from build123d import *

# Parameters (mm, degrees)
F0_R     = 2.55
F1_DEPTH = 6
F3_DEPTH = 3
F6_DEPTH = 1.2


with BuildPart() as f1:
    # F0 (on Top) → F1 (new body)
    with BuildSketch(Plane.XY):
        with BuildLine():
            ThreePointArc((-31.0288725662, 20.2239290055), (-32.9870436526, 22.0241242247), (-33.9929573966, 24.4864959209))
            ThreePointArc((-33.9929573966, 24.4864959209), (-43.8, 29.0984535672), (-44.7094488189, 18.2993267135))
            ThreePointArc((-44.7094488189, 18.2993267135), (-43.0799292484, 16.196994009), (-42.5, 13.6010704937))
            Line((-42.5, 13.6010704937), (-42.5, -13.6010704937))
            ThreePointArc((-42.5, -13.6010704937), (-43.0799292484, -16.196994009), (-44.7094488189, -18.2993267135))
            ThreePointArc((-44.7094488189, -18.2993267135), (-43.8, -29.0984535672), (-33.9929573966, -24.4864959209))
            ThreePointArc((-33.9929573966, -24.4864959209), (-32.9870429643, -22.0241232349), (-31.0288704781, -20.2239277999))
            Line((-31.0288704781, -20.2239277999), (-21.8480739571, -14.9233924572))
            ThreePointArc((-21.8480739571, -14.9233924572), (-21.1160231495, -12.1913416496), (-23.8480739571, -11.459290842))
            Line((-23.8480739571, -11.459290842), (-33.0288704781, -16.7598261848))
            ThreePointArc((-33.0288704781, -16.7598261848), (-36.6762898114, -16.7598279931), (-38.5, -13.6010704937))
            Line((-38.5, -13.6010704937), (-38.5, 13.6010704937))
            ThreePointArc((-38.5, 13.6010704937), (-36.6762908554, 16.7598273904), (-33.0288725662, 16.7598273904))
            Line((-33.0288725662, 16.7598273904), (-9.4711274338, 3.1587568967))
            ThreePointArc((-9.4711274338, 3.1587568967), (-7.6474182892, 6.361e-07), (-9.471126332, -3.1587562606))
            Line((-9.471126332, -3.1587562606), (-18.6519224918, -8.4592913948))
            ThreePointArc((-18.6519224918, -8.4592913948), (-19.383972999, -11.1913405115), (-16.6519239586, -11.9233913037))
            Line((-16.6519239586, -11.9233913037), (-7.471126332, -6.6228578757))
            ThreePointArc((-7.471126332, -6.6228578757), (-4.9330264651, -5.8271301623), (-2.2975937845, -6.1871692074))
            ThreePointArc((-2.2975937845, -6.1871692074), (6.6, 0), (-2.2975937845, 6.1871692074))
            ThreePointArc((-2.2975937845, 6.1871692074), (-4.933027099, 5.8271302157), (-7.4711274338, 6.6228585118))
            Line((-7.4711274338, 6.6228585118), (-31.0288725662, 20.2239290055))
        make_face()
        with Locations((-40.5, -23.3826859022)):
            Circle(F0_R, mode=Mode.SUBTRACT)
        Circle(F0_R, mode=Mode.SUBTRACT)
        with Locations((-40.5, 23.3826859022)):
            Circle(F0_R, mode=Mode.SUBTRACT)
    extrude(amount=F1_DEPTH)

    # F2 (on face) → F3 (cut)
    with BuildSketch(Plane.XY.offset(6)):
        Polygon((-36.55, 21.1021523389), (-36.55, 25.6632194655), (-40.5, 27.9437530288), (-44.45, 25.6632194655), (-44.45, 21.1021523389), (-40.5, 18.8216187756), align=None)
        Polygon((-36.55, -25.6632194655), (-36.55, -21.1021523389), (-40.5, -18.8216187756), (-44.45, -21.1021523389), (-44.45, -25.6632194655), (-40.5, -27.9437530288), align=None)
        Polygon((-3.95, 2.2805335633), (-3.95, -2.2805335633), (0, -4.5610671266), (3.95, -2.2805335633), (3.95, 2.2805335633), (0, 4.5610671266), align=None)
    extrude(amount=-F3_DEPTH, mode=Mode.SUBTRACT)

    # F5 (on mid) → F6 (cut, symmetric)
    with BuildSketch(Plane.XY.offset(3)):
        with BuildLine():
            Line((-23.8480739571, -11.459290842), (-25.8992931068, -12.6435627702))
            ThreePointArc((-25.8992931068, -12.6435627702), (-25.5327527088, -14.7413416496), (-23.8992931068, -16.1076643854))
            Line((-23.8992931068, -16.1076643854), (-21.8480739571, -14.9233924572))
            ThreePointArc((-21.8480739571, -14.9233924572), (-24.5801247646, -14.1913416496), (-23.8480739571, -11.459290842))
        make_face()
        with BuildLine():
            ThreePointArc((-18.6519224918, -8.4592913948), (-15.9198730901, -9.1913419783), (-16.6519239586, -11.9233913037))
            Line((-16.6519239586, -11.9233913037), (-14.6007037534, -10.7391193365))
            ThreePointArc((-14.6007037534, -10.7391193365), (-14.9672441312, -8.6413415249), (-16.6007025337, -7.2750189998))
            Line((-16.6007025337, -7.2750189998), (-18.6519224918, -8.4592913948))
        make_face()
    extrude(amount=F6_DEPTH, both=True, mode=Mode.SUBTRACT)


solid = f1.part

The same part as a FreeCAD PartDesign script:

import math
import FreeCAD as App
import Part
import Sketcher

V = App.Vector
Q = App.Units.Quantity

doc = App.newDocument("Part")
body = doc.addObject("PartDesign::Body", "Body")

sketch1 = body.newObject("Sketcher::SketchObject", "Sketch")
sketch1.AttachmentSupport = (doc.getObject("XY_Plane"), [""])
sketch1.MapMode = "FlatFace"
sketch1.addGeometry([
    Part.ArcOfCircle(Part.Circle(V(-28, 25.5, 0), V(0, 0, 1), 6.1), math.radians(-170), math.radians(-120)),
    Part.ArcOfCircle(Part.Circle(V(-40.5, 23.4, 0), V(0, 0, 1), 6.6), math.radians(10), math.radians(230)),
    Part.ArcOfCircle(Part.Circle(V(-48.6, 13.6, 0), V(0, 0, 1), 6.1), math.radians(0), math.radians(50)),
    Part.LineSegment(V(-42.5, 13.6, 0), V(-42.5, -13.6, 0)),
    Part.ArcOfCircle(Part.Circle(V(-48.6, -13.6, 0), V(0, 0, 1), 6.1), math.radians(-50), math.radians(0)),
    Part.ArcOfCircle(Part.Circle(V(-40.5, -23.4, 0), V(0, 0, 1), 6.6), math.radians(130), math.radians(350)),
    Part.ArcOfCircle(Part.Circle(V(-28, -25.5, 0), V(0, 0, 1), 6.1), math.radians(120), math.radians(170)),
    Part.LineSegment(V(-31, -20.2, 0), V(-21.8, -14.9, 0)),
    Part.ArcOfCircle(Part.Circle(V(-22.8, -13.2, 0), V(0, 0, 1), 2), math.radians(-60), math.radians(120)),
    Part.LineSegment(V(-23.8, -11.5, 0), V(-33, -16.8, 0)),
    Part.ArcOfCircle(Part.Circle(V(-34.9, -13.6, 0), V(0, 0, 1), 3.6), math.radians(180), math.radians(300)),
    Part.LineSegment(V(-38.5, -13.6, 0), V(-38.5, 13.6, 0)),
    Part.ArcOfCircle(Part.Circle(V(-34.9, 13.6, 0), V(0, 0, 1), 3.6), math.radians(60), math.radians(180)),
    Part.LineSegment(V(-33, 16.8, 0), V(-9.5, 3.2, 0)),
    Part.ArcOfCircle(Part.Circle(V(-11.3, 0, 0), V(0, 0, 1), 3.6), math.radians(-60), math.radians(60)),
    Part.LineSegment(V(-9.5, -3.2, 0), V(-18.7, -8.5, 0)),
    Part.ArcOfCircle(Part.Circle(V(-17.7, -10.2, 0), V(0, 0, 1), 2), math.radians(120), math.radians(300)),
    Part.LineSegment(V(-16.7, -11.9, 0), V(-7.5, -6.6, 0)),
    Part.ArcOfCircle(Part.Circle(V(-4.4, -11.9, 0), V(0, 0, 1), 6.1), math.radians(70), math.radians(120)),
    Part.ArcOfCircle(Part.Circle(V(0, 0, 0), V(0, 0, 1), 6.6), math.radians(-110), math.radians(110)),
    Part.ArcOfCircle(Part.Circle(V(-4.4, 11.9, 0), V(0, 0, 1), 6.1), math.radians(-120), math.radians(-70)),
    Part.LineSegment(V(-7.5, 6.6, 0), V(-31, 20.2, 0)),
    Part.Circle(V(-40.5, -23.4, 0), V(0, 0, 1), 2.5),
    Part.Circle(V(-40.5, 23.4, 0), V(0, 0, 1), 2.5),
    Part.Circle(V(0, 0, 0), V(0, 0, 1), 2.5),
], False)
sketch1.addConstraint([
    Sketcher.Constraint("Tangent", 0, 1, 1, 1),
    Sketcher.Constraint("Tangent", 1, 2, 2, 2),
    Sketcher.Constraint("Tangent", 2, 1, 3, 1),
    Sketcher.Constraint("Tangent", 3, 2, 4, 2),
    Sketcher.Constraint("Tangent", 4, 1, 5, 1),
    Sketcher.Constraint("Tangent", 5, 2, 6, 2),
    Sketcher.Constraint("Tangent", 6, 1, 7, 1),
    Sketcher.Constraint("Tangent", 7, 2, 8, 1),
    Sketcher.Constraint("Tangent", 8, 2, 9, 1),
    Sketcher.Constraint("Tangent", 9, 2, 10, 2),
    Sketcher.Constraint("Tangent", 10, 1, 11, 1),
    Sketcher.Constraint("Tangent", 11, 2, 12, 2),
    Sketcher.Constraint("Tangent", 12, 1, 13, 1),
    Sketcher.Constraint("Tangent", 13, 2, 14, 2),
    Sketcher.Constraint("Tangent", 14, 1, 15, 1),
    Sketcher.Constraint("Tangent", 15, 2, 16, 1),
    Sketcher.Constraint("Tangent", 16, 2, 17, 1),
    Sketcher.Constraint("Tangent", 17, 2, 18, 2),
    Sketcher.Constraint("Tangent", 18, 1, 19, 1),
    Sketcher.Constraint("Tangent", 19, 2, 20, 2),
    Sketcher.Constraint("Tangent", 20, 1, 21, 1),
    Sketcher.Constraint("Tangent", 21, 2, 0, 2),
    Sketcher.Constraint("Vertical", 3),
    Sketcher.Constraint("Vertical", 11),
    Sketcher.Constraint("Coincident", 19, 3, -1, 1),
    Sketcher.Constraint("Coincident", 24, 3, -1, 1),
    Sketcher.Constraint("Coincident", 22, 3, 5, 3),
    Sketcher.Constraint("Coincident", 23, 3, 1, 3),
    Sketcher.Constraint("Equal", 0, 2),
    Sketcher.Constraint("Equal", 2, 4),
    Sketcher.Constraint("Equal", 1, 5),
    Sketcher.Constraint("Equal", 4, 6),
    Sketcher.Constraint("Equal", 10, 12),
    Sketcher.Constraint("Equal", 12, 14),
    Sketcher.Constraint("Equal", 8, 16),
    Sketcher.Constraint("Equal", 6, 18),
    Sketcher.Constraint("Equal", 5, 19),
    Sketcher.Constraint("Equal", 18, 20),
    Sketcher.Constraint("Equal", 22, 23),
    Sketcher.Constraint("Equal", 23, 24),
    Sketcher.Constraint("Symmetric", 1, 3, 5, 3, -1),
    Sketcher.Constraint("Symmetric", 9, 2, 12, 1, -1),
    Sketcher.Constraint("Symmetric", 13, 2, 14, 1, -1),
    Sketcher.Constraint("Symmetric", 17, 2, 20, 1, -1),
    Sketcher.Constraint("Symmetric", 6, 1, 21, 2, -1),
    Sketcher.Constraint("Horizontal", 4, 3, 10, 3),
    Sketcher.Constraint("Equal", 7, 9),
    Sketcher.Constraint("Equal", 9, 15),
    Sketcher.Constraint("Equal", 15, 17),
    Sketcher.Constraint("Radius", 8, Q("2 mm")),
    Sketcher.Constraint("Diameter", 22, Q("5.1 mm")),
    Sketcher.Constraint("Radius", 0, Q("6.1 mm")),
    Sketcher.Constraint("Radius", 1, Q("6.6 mm")),
    Sketcher.Constraint("Angle", 7, Q("30 deg")),
    Sketcher.Constraint("DistanceY", 8, 3, 16, 3, Q("3 mm")),
    Sketcher.Constraint("DistanceX", 2, 1, 1, 3, Q("2 mm")),
    Sketcher.Constraint("DistanceX", 3, 2, 10, 1, Q("4 mm")),
    Sketcher.Constraint("DistanceX", 1, 3, -1, 1, Q("40.5 mm")),
])
pad1 = body.newObject("PartDesign::Pad", "Pad")
pad1.Profile = sketch1
pad1.Length = 6

sketch2 = body.newObject("Sketcher::SketchObject", "Sketch001")
sketch2.AttachmentSupport = (doc.getObject("XY_Plane"), [""])
sketch2.MapMode = "FlatFace"
sketch2.AttachmentOffset = App.Placement(V(0, 0, 6), App.Rotation())
sketch2.addGeometry([
    Part.LineSegment(V(-36.5, 21.1, 0), V(-36.5, 25.7, 0)),
    Part.LineSegment(V(-36.5, 25.7, 0), V(-40.5, 27.9, 0)),
    Part.LineSegment(V(-40.5, 27.9, 0), V(-44.5, 25.7, 0)),
    Part.LineSegment(V(-44.5, 25.7, 0), V(-44.5, 21.1, 0)),
    Part.LineSegment(V(-44.5, 21.1, 0), V(-40.5, 18.8, 0)),
    Part.LineSegment(V(-40.5, 18.8, 0), V(-36.5, 21.1, 0)),
    Part.LineSegment(V(-36.5, -25.7, 0), V(-36.5, -21.1, 0)),
    Part.LineSegment(V(-36.5, -21.1, 0), V(-40.5, -18.8, 0)),
    Part.LineSegment(V(-40.5, -18.8, 0), V(-44.5, -21.1, 0)),
    Part.LineSegment(V(-44.5, -21.1, 0), V(-44.5, -25.7, 0)),
    Part.LineSegment(V(-44.5, -25.7, 0), V(-40.5, -27.9, 0)),
    Part.LineSegment(V(-40.5, -27.9, 0), V(-36.5, -25.7, 0)),
    Part.LineSegment(V(-4, 2.3, 0), V(-4, -2.3, 0)),
    Part.LineSegment(V(-4, -2.3, 0), V(0, -4.6, 0)),
    Part.LineSegment(V(0, -4.6, 0), V(4, -2.3, 0)),
    Part.LineSegment(V(4, -2.3, 0), V(4, 2.3, 0)),
    Part.LineSegment(V(4, 2.3, 0), V(0, 4.6, 0)),
    Part.LineSegment(V(0, 4.6, 0), V(-4, 2.3, 0)),
], False)
sketch2.addConstraint([
    Sketcher.Constraint("Coincident", 0, 2, 1, 1),
    Sketcher.Constraint("Coincident", 1, 2, 2, 1),
    Sketcher.Constraint("Coincident", 2, 2, 3, 1),
    Sketcher.Constraint("Coincident", 3, 2, 4, 1),
    Sketcher.Constraint("Coincident", 4, 2, 5, 1),
    Sketcher.Constraint("Coincident", 5, 2, 0, 1),
    Sketcher.Constraint("Coincident", 6, 2, 7, 1),
    Sketcher.Constraint("Coincident", 7, 2, 8, 1),
    Sketcher.Constraint("Coincident", 8, 2, 9, 1),
    Sketcher.Constraint("Coincident", 9, 2, 10, 1),
    Sketcher.Constraint("Coincident", 10, 2, 11, 1),
    Sketcher.Constraint("Coincident", 11, 2, 6, 1),
    Sketcher.Constraint("Coincident", 12, 2, 13, 1),
    Sketcher.Constraint("Coincident", 13, 2, 14, 1),
    Sketcher.Constraint("Coincident", 14, 2, 15, 1),
    Sketcher.Constraint("Coincident", 15, 2, 16, 1),
    Sketcher.Constraint("Coincident", 16, 2, 17, 1),
    Sketcher.Constraint("Coincident", 17, 2, 12, 1),
    Sketcher.Constraint("Vertical", 0),
    Sketcher.Constraint("Vertical", 3),
    Sketcher.Constraint("Vertical", 6),
    Sketcher.Constraint("Vertical", 9),
    Sketcher.Constraint("Vertical", 12),
    Sketcher.Constraint("Vertical", 15),
    Sketcher.Constraint("Symmetric", 12, 2, 15, 2, -1, 1),
    Sketcher.Constraint("Symmetric", 13, 2, 16, 2, -1, 1),
    Sketcher.Constraint("Symmetric", 5, 2, 6, 2, -1),
    Sketcher.Constraint("Symmetric", 4, 2, 7, 2, -1),
    Sketcher.Constraint("Symmetric", 3, 2, 8, 2, -1),
    Sketcher.Constraint("Symmetric", 1, 2, 10, 2, -1),
    Sketcher.Constraint("PointOnObject", 13, 2, -2),
    Sketcher.Constraint("Parallel", 1, 4),
    Sketcher.Constraint("Parallel", 2, 5),
    Sketcher.Constraint("Parallel", 4, 7),
    Sketcher.Constraint("Parallel", 7, 10),
    Sketcher.Constraint("Parallel", 8, 11),
    Sketcher.Constraint("Parallel", 10, 13),
    Sketcher.Constraint("Parallel", 11, 14),
    Sketcher.Constraint("Parallel", 14, 17),
    Sketcher.Constraint("Horizontal", 0, 2, 2, 2),
    Sketcher.Constraint("Horizontal", 3, 2, 5, 2),
    Sketcher.Constraint("Equal", 9, 12),
    Sketcher.Constraint("Equal", 11, 13),
    Sketcher.Constraint("Angle", 1, Q("150 deg")),
    Sketcher.Constraint("DistanceX", 1, 2, -1, 1, Q("40.5 mm")),
    Sketcher.Constraint("DistanceX", 2, 2, 0, 2, Q("7.9 mm")),
    Sketcher.Constraint("DistanceY", 3, 2, 1, 2, Q("6.841601 mm")),
    Sketcher.Constraint("DistanceY", -1, 1, 0, 2, Q("25.663219 mm")),
])
pocket1 = body.newObject("PartDesign::Pocket", "Pocket")
pocket1.Profile = sketch2
pocket1.Length = 3

sketch3 = body.newObject("Sketcher::SketchObject", "Sketch002")
sketch3.AttachmentSupport = (doc.getObject("XY_Plane"), [""])
sketch3.MapMode = "FlatFace"
sketch3.AttachmentOffset = App.Placement(V(0, 0, 3), App.Rotation())
sketch3.addGeometry([
    Part.LineSegment(V(-23.8, -11.5, 0), V(-25.9, -12.6, 0)),
    Part.ArcOfCircle(Part.Circle(V(-22.8, -13.2, 0), V(0, 0, 1), 3.1), math.radians(170), math.radians(250)),
    Part.LineSegment(V(-23.9, -16.1, 0), V(-21.8, -14.9, 0)),
    Part.ArcOfCircle(Part.Circle(V(-22.8, -13.2, 0), V(0, 0, 1), 2), math.radians(120), math.radians(300)),
    Part.ArcOfCircle(Part.Circle(V(-17.7, -10.2, 0), V(0, 0, 1), 2), math.radians(-60), math.radians(120)),
    Part.LineSegment(V(-16.7, -11.9, 0), V(-14.6, -10.7, 0)),
    Part.ArcOfCircle(Part.Circle(V(-17.7, -10.2, 0), V(0, 0, 1), 3.1), math.radians(-10), math.radians(70)),
    Part.LineSegment(V(-16.6, -7.3, 0), V(-18.7, -8.5, 0)),
], False)
sketch3.addConstraint([
    Sketcher.Constraint("Coincident", 0, 2, 1, 1),
    Sketcher.Constraint("Coincident", 1, 2, 2, 1),
    Sketcher.Constraint("Tangent", 2, 2, 3, 2),
    Sketcher.Constraint("Tangent", 3, 1, 0, 1),
    Sketcher.Constraint("Tangent", 4, 1, 5, 1),
    Sketcher.Constraint("Coincident", 5, 2, 6, 1),
    Sketcher.Constraint("Coincident", 6, 2, 7, 1),
    Sketcher.Constraint("Tangent", 7, 2, 4, 2),
    Sketcher.Constraint("Coincident", 3, 3, 1, 3),
    Sketcher.Constraint("Coincident", 6, 3, 4, 3),
    Sketcher.Constraint("Equal", 3, 4),
    Sketcher.Constraint("Equal", 1, 6),
    Sketcher.Constraint("Parallel", 0, 2),
    Sketcher.Constraint("Parallel", 2, 5),
    Sketcher.Constraint("Parallel", 5, 7),
    Sketcher.Constraint("Radius", 3, Q("2 mm")),
    Sketcher.Constraint("Radius", 1, Q("3.1 mm")),
    Sketcher.Constraint("Angle", 0, Q("-150 deg")),
    Sketcher.Constraint("DistanceY", 1, 3, 4, 3, Q("3 mm")),
    Sketcher.Constraint("DistanceY", 1, 3, -1, 1, Q("13.191342 mm")),
    Sketcher.Constraint("DistanceX", 1, 3, 4, 3, Q("5.196151 mm")),
    Sketcher.Constraint("DistanceX", 1, 3, -1, 1, Q("22.848074 mm")),
])
pocket2 = body.newObject("PartDesign::Pocket", "Pocket001")
pocket2.Profile = sketch3
pocket2.Length = 2.4
pocket2.Midplane = True

doc.recompute()
